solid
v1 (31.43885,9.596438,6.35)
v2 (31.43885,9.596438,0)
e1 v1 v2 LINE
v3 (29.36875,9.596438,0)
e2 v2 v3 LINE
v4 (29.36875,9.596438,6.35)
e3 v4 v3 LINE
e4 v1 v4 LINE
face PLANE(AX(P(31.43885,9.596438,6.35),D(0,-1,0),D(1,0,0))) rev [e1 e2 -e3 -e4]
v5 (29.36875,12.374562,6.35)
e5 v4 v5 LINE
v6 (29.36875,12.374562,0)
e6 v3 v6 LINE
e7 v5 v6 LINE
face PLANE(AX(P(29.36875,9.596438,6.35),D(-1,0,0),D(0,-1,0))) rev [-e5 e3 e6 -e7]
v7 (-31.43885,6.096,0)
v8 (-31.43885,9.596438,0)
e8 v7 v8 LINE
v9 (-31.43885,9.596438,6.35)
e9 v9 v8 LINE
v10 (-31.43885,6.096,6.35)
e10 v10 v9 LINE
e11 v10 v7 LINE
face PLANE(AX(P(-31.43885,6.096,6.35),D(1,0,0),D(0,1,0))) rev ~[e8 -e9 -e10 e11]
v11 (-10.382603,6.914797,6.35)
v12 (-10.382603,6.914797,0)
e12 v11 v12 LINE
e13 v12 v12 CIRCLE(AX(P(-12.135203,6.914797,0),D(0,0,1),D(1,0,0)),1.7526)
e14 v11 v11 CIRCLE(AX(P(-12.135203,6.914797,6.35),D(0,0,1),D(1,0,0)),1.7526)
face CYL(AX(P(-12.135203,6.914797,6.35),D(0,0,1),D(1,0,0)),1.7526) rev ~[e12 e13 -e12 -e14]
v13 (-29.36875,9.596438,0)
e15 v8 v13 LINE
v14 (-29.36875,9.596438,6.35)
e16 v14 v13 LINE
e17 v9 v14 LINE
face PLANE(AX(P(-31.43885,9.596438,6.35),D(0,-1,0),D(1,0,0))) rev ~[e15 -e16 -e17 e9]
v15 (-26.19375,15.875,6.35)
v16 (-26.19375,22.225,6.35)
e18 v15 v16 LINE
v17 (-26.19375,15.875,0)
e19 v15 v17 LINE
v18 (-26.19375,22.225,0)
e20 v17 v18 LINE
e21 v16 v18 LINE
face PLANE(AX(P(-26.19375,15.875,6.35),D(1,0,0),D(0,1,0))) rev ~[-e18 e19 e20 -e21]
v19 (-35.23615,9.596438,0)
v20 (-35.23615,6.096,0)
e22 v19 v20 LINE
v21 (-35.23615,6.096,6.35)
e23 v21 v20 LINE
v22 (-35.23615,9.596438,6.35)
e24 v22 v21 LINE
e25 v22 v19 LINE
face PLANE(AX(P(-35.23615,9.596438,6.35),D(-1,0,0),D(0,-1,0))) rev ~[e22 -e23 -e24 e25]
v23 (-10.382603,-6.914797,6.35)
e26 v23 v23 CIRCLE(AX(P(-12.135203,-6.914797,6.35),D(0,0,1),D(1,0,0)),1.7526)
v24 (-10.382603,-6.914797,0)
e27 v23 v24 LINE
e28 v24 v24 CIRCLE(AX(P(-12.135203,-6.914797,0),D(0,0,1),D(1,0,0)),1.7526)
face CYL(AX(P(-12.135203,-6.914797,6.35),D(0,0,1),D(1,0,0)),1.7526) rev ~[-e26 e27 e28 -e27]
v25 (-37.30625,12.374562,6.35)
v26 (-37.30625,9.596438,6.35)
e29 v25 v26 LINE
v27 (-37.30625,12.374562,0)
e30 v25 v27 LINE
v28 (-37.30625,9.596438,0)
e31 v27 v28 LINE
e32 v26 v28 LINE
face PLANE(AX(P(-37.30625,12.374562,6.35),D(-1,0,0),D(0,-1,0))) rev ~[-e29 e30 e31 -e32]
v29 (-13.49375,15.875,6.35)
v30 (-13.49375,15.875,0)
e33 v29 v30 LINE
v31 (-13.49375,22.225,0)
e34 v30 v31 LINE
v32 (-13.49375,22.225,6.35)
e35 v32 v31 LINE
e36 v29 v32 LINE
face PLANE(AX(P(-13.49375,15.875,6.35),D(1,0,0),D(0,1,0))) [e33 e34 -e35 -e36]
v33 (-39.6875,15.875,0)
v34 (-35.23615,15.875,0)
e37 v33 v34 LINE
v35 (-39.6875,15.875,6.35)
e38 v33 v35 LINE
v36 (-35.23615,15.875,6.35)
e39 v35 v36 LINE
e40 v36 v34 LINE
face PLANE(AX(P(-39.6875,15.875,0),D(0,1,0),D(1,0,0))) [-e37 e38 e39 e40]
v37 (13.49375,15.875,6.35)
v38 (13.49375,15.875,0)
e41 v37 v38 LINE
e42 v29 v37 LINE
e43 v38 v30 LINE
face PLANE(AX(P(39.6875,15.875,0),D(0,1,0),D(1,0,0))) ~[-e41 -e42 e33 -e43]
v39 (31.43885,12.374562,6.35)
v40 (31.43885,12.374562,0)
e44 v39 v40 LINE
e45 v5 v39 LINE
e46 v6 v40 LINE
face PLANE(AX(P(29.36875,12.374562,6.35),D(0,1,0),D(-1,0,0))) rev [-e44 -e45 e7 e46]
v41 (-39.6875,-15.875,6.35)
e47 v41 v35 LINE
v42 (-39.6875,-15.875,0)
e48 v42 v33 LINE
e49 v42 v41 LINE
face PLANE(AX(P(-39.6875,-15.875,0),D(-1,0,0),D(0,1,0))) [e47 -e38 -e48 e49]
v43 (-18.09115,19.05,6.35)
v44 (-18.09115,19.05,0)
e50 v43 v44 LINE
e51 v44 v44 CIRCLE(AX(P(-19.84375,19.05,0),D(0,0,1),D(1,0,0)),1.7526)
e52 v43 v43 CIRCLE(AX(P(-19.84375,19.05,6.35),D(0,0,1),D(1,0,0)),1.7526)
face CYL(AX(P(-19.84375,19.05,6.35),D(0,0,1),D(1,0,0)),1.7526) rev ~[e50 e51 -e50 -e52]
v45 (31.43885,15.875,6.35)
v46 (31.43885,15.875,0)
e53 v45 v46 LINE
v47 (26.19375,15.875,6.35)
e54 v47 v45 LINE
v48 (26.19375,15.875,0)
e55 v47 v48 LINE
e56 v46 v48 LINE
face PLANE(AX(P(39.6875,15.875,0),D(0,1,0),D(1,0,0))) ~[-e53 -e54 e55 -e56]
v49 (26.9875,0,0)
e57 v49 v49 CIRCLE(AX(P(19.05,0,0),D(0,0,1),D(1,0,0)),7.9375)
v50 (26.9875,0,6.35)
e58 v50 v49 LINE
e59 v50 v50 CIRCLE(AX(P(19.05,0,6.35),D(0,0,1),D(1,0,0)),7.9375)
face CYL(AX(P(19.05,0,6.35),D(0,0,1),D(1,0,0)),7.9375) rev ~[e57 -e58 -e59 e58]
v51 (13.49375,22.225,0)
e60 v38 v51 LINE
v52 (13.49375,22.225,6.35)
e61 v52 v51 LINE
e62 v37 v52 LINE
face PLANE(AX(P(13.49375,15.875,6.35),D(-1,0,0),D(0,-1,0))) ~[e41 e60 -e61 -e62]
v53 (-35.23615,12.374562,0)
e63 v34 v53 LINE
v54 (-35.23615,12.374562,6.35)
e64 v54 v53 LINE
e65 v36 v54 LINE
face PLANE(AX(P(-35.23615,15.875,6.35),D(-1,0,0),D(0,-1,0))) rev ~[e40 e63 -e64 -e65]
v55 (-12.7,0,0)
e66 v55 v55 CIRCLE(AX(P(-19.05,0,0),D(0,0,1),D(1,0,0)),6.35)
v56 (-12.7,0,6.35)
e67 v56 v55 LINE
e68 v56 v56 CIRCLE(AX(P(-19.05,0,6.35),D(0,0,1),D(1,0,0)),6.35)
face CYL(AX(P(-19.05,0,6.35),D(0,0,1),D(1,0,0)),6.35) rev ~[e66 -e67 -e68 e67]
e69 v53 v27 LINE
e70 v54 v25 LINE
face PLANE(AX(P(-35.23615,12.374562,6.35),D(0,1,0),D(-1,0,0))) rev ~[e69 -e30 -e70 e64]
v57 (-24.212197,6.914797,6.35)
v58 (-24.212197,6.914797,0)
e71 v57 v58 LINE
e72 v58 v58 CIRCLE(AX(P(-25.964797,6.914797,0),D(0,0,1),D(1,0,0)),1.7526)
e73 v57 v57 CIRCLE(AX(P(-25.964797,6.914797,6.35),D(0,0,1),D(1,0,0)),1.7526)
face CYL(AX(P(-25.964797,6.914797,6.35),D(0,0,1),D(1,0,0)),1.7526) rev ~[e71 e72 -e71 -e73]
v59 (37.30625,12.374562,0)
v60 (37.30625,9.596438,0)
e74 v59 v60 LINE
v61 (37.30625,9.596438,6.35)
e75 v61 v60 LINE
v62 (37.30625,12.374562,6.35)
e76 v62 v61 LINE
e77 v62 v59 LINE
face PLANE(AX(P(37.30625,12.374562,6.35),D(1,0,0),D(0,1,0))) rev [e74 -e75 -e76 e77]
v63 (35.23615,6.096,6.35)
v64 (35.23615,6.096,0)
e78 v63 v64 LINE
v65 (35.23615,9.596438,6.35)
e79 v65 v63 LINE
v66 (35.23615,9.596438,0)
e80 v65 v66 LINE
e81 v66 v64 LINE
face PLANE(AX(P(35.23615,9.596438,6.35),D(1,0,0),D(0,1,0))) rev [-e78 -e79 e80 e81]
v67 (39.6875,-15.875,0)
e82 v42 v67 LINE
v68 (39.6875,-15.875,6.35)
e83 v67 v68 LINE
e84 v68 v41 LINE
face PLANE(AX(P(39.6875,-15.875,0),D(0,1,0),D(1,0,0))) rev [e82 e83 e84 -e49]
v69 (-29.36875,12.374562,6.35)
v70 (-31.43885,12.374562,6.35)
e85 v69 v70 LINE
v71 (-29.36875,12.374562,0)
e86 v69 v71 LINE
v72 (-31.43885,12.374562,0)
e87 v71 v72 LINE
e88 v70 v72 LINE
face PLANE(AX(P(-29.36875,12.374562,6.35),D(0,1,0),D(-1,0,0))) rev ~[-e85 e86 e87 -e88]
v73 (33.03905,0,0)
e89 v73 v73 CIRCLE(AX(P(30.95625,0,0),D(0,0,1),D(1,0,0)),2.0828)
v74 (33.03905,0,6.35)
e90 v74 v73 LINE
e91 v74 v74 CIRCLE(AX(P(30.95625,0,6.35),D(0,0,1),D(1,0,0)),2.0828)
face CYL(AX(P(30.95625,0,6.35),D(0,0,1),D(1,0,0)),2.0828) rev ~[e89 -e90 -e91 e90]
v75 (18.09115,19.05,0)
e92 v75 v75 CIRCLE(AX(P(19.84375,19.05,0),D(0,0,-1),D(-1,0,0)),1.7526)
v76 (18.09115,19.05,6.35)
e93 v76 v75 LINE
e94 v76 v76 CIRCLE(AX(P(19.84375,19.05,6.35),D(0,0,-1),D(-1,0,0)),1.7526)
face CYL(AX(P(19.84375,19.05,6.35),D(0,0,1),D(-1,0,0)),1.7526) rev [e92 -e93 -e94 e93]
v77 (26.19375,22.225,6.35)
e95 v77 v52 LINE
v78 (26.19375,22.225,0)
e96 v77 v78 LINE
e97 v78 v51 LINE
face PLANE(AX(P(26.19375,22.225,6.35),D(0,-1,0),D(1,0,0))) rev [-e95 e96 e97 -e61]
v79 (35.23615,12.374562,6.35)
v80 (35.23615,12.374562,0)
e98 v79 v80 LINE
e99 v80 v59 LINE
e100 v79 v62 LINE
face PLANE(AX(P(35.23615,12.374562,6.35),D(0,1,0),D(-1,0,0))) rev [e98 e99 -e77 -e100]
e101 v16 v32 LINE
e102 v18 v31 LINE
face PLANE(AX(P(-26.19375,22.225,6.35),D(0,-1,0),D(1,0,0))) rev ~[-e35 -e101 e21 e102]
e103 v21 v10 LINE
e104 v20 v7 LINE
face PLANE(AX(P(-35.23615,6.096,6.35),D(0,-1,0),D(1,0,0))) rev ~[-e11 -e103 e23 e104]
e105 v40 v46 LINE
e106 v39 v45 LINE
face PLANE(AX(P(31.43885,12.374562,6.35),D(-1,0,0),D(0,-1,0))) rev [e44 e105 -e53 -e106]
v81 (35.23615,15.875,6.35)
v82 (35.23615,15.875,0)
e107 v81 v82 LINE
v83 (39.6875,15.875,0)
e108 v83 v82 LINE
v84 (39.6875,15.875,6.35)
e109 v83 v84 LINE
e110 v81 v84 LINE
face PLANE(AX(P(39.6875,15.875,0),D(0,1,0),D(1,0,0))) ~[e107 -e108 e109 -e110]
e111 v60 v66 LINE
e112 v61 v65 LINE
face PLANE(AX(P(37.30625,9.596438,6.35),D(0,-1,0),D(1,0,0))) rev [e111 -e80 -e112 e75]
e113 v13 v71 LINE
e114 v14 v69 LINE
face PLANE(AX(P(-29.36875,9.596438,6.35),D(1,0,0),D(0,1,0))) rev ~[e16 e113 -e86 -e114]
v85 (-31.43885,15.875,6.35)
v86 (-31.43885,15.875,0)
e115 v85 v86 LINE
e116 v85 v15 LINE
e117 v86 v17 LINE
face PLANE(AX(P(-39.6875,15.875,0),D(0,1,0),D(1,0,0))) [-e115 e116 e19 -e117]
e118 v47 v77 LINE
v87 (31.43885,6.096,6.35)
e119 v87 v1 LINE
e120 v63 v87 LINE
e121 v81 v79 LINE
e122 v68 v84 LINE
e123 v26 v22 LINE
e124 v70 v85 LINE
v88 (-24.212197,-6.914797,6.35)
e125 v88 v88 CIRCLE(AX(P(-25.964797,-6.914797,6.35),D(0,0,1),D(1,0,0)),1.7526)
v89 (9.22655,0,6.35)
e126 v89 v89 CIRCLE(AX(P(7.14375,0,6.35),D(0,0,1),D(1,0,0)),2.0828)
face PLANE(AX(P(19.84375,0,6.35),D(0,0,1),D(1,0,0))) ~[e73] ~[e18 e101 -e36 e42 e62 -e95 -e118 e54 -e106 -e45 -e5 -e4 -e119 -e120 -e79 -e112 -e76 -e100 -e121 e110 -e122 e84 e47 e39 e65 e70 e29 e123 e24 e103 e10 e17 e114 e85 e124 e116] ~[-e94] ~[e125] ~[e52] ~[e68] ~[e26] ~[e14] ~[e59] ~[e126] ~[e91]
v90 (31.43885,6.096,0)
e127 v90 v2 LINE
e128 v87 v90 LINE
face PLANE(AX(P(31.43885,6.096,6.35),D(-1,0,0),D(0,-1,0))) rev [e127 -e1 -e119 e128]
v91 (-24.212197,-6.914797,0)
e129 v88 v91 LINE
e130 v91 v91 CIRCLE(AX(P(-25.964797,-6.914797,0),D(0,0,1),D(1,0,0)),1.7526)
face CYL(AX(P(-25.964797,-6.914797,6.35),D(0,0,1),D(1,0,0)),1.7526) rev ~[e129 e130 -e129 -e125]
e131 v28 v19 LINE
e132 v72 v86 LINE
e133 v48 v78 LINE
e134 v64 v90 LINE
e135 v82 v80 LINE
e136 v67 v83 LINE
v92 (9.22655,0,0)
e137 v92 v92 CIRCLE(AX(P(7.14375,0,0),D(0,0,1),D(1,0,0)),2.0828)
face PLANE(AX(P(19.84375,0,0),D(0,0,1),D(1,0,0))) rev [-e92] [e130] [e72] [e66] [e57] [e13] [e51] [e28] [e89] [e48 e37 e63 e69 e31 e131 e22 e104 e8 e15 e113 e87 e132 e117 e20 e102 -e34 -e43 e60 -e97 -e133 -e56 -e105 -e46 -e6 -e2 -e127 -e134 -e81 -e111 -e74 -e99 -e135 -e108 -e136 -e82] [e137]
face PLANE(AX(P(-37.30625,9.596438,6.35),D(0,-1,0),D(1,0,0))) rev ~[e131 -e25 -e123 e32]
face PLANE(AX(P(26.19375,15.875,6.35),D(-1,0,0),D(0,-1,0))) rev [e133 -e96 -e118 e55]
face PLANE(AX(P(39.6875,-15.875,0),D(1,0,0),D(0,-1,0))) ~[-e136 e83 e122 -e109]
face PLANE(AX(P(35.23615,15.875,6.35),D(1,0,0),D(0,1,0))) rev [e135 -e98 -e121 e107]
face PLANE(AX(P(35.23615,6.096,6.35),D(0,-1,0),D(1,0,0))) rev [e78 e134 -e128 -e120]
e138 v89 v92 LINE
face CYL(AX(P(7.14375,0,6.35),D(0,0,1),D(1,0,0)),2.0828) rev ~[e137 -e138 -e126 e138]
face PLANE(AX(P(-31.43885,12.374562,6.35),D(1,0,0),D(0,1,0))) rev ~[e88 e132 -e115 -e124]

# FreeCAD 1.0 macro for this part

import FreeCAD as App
import Part
import Sketcher

V = App.Vector
Q = App.Units.Quantity


def add_polygon(sketch, points):
    """Adds a closed chain of lines whose ends are joined by coincident constraints."""
    first, n = sketch.GeometryCount, len(points)
    for a, b in zip(points, points[1:] + points[:1]):
        sketch.addGeometry(Part.LineSegment(App.Vector(*a, 0), App.Vector(*b, 0)), False)
    for i in range(n):
        sketch.addConstraint(Sketcher.Constraint("Coincident", first + i, 2, first + (i + 1) % n, 1))

doc = App.newDocument("Part")
body = doc.addObject("PartDesign::Body", "Body")

sketch1 = body.newObject("Sketcher::SketchObject", "Sketch")
sketch1.AttachmentSupport = (doc.getObject("XY_Plane"), [""])
sketch1.MapMode = "FlatFace"
add_polygon(sketch1, [(-40, 16), (-40, -16), (0, -16), (0, 16)])
sketch1.addConstraint(Sketcher.Constraint("Vertical", 0))
sketch1.addConstraint(Sketcher.Constraint("Horizontal", 1))
sketch1.addConstraint(Sketcher.Constraint("Vertical", 2))
sketch1.addConstraint(Sketcher.Constraint("Horizontal", 3))
sketch1.addConstraint(Sketcher.Constraint("Symmetric", 1, 2, 2, 2, -1, 1))
sketch1.addConstraint(Sketcher.Constraint("DistanceY", 0, 2, 0, 1, Q("1.25 in")))
sketch1.addConstraint(Sketcher.Constraint("DistanceX", 1, 1, 1, 2, Q("1.5625 in")))
pad1 = body.newObject("PartDesign::Pad", "Pad")
pad1.Profile = sketch1
pad1.Length = Q("0.25 in")

sketch2 = body.newObject("Sketcher::SketchObject", "Sketch001")
sketch2.AttachmentSupport = (doc.getObject("XY_Plane"), [""])
sketch2.MapMode = "FlatFace"
sketch2.AttachmentOffset = App.Placement(V(0, 0, 0.25 * 25.4), App.Rotation())
sketch2.addGeometry(Part.Circle(V(-19.1, 0, 0), V(0, 0, 1), 6.3), False)
sketch2.addGeometry(Part.Circle(V(-26, 6.9, 0), V(0, 0, 1), 1.8), False)
sketch2.addGeometry(Part.Circle(V(-12.1, 6.9, 0), V(0, 0, 1), 1.8), False)
sketch2.addGeometry(Part.Circle(V(-12.1, -6.9, 0), V(0, 0, 1), 1.8), False)
sketch2.addGeometry(Part.Circle(V(-26, -6.9, 0), V(0, 0, 1), 1.8), False)
sketch2.addConstraint(Sketcher.Constraint("Equal", 1, 2))
sketch2.addConstraint(Sketcher.Constraint("Equal", 2, 3))
sketch2.addConstraint(Sketcher.Constraint("Equal", 3, 4))
sketch2.addConstraint(Sketcher.Constraint("Symmetric", 2, 3, 3, 3, -1))
sketch2.addConstraint(Sketcher.Constraint("Symmetric", 1, 3, 4, 3, -1))
sketch2.addConstraint(Sketcher.Constraint("PointOnObject", 0, 3, -1))
sketch2.addConstraint(Sketcher.Constraint("Horizontal", 1, 3, 2, 3))
sketch2.addConstraint(Sketcher.Constraint("Diameter", 0, Q("0.5 in")))
sketch2.addConstraint(Sketcher.Constraint("Diameter", 1, Q("0.138 in")))
sketch2.addConstraint(Sketcher.Constraint("DistanceX", 0, 3, -1, 1, Q("0.75 in")))
sketch2.addConstraint(Sketcher.Constraint("DistanceX", 1, 3, -1, 1, Q("25.964797 mm")))
sketch2.addConstraint(Sketcher.Constraint("DistanceY", -1, 1, 1, 3, Q("6.914797 mm")))
sketch2.addConstraint(Sketcher.Constraint("DistanceX", 2, 3, -1, 1, Q("12.135203 mm")))
pocket1 = body.newObject("PartDesign::Pocket", "Pocket")
pocket1.Profile = sketch2
pocket1.Length = Q("0.25 in")

sketch3 = body.newObject("Sketcher::SketchObject", "Sketch002")
sketch3.AttachmentSupport = (doc.getObject("XY_Plane"), [""])
sketch3.MapMode = "FlatFace"
sketch3.AttachmentOffset = App.Placement(V(0, 0, 0.25 * 25.4), App.Rotation())
add_polygon(sketch3, [(-35.2, 6.1), (-31.4, 6.1), (-31.4, 9.6), (-29.4, 9.6), (-29.4, 12.4), (-31.4, 12.4), (-31.4, 15.9), (-35.2, 15.9), (-35.2, 12.4), (-37.3, 12.4), (-37.3, 9.6), (-35.2, 9.6)])
sketch3.addConstraint(Sketcher.Constraint("Horizontal", 0))
sketch3.addConstraint(Sketcher.Constraint("Vertical", 1))
sketch3.addConstraint(Sketcher.Constraint("Horizontal", 2))
sketch3.addConstraint(Sketcher.Constraint("Vertical", 3))
sketch3.addConstraint(Sketcher.Constraint("Horizontal", 4))
sketch3.addConstraint(Sketcher.Constraint("Vertical", 5))
sketch3.addConstraint(Sketcher.Constraint("Horizontal", 6))
sketch3.addConstraint(Sketcher.Constraint("Vertical", 7))
sketch3.addConstraint(Sketcher.Constraint("Horizontal", 8))
sketch3.addConstraint(Sketcher.Constraint("Vertical", 9))
sketch3.addConstraint(Sketcher.Constraint("Horizontal", 10))
sketch3.addConstraint(Sketcher.Constraint("Vertical", 11))
sketch3.addConstraint(Sketcher.Constraint("Horizontal", 4, 2, 7, 2))
sketch3.addConstraint(Sketcher.Constraint("Horizontal", 2, 2, 9, 2))
sketch3.addConstraint(Sketcher.Constraint("Vertical", 1, 2, 4, 2))
sketch3.addConstraint(Sketcher.Constraint("Vertical", 7, 2, 10, 2))
sketch3.addConstraint(Sketcher.Constraint("Equal", 4, 8))
sketch3.addConstraint(Sketcher.Constraint("Equal", 1, 5))
sketch3.addConstraint(Sketcher.Constraint("DistanceY", 3, 1, 3, 2, Q("0.109375 in")))
sketch3.addConstraint(Sketcher.Constraint("DistanceY", -1, 1, 0, 2, Q("0.24 in")))
sketch3.addConstraint(Sketcher.Constraint("DistanceX", 0, 1, 0, 2, Q("0.1495 in")))
sketch3.addConstraint(Sketcher.Constraint("DistanceX", 2, 1, 2, 2, Q("0.0815 in")))
sketch3.addConstraint(Sketcher.Constraint("DistanceX", 2, 2, -1, 1, Q("1.15625 in")))
sketch3.addConstraint(Sketcher.Constraint("DistanceY", -1, 1, 5, 2, Q("0.625 in")))
pocket2 = body.newObject("PartDesign::Pocket", "Pocket001")
pocket2.Profile = sketch3
pocket2.Length = Q("0.25 in")

sketch4 = body.newObject("Sketcher::SketchObject", "Sketch003")
sketch4.AttachmentSupport = (doc.getObject("XY_Plane"), [""])
sketch4.MapMode = "FlatFace"
sketch4.AttachmentOffset = App.Placement(V(0, 0, 0.25 * 25.4), App.Rotation())
add_polygon(sketch4, [(-26.2, 22.2), (-26.2, 15.9), (-13.5, 15.9), (-13.5, 22.2)])
sketch4.addGeometry(Part.Circle(V(-19.8, 19.1, 0), V(0, 0, 1), 1.8), False)
sketch4.addConstraint(Sketcher.Constraint("Vertical", 0))
sketch4.addConstraint(Sketcher.Constraint("Horizontal", 1))
sketch4.addConstraint(Sketcher.Constraint("Vertical", 2))
sketch4.addConstraint(Sketcher.Constraint("Horizontal", 3))
sketch4.addConstraint(Sketcher.Constraint("Diameter", 4, Q("0.138 in")))
sketch4.addConstraint(Sketcher.Constraint("DistanceX", 1, 1, 1, 2, Q("0.5 in")))
sketch4.addConstraint(Sketcher.Constraint("DistanceY", 0, 2, 0, 1, Q("0.25 in")))
sketch4.addConstraint(Sketcher.Constraint("DistanceY", -1, 1, 4, 3, Q("0.75 in")))
sketch4.addConstraint(Sketcher.Constraint("DistanceX", 0, 2, 4, 3, Q("0.25 in")))
sketch4.addConstraint(Sketcher.Constraint("DistanceX", 4, 3, -1, 1, Q("0.78125 in")))
sketch4.addConstraint(Sketcher.Constraint("DistanceY", -1, 1, 0, 2, Q("0.625 in")))
pad2 = body.newObject("PartDesign::Pad", "Pad001")
pad2.Profile = sketch4
pad2.Length = Q("0.25 in")
pad2.Reversed = True
doc.recompute()

mirrored = body.newObject("PartDesign::Mirrored", "Mirrored")
mirrored.Originals = [pad1, pocket2, pad2]
mirrored.MirrorPlane = (doc.getObject("YZ_Plane"), [""])
body.Tip = mirrored

sketch5 = body.newObject("Sketcher::SketchObject", "Sketch004")
sketch5.AttachmentSupport = (doc.getObject("XY_Plane"), [""])
sketch5.MapMode = "FlatFace"
sketch5.AttachmentOffset = App.Placement(V(0, 0, 0.25 * 25.4), App.Rotation())
sketch5.addGeometry(Part.Circle(V(19.1, 0, 0), V(0, 0, 1), 7.9), False)
sketch5.addGeometry(Part.Circle(V(7.1, 0, 0), V(0, 0, 1), 2.1), False)
sketch5.addGeometry(Part.Circle(V(31, 0, 0), V(0, 0, 1), 2.1), False)
sketch5.addConstraint(Sketcher.Constraint("Equal", 1, 2))
sketch5.addConstraint(Sketcher.Constraint("PointOnObject", 0, 3, -1))
sketch5.addConstraint(Sketcher.Constraint("PointOnObject", 1, 3, -1))
sketch5.addConstraint(Sketcher.Constraint("PointOnObject", 2, 3, -1))
sketch5.addConstraint(Sketcher.Constraint("Diameter", 0, Q("0.625 in")))
sketch5.addConstraint(Sketcher.Constraint("Diameter", 1, Q("0.164 in")))
sketch5.addConstraint(Sketcher.Constraint("DistanceX", -1, 1, 0, 3, Q("0.75 in")))
sketch5.addConstraint(Sketcher.Constraint("DistanceX", -1, 1, 1, 3, Q("0.28125 in")))
sketch5.addConstraint(Sketcher.Constraint("DistanceX", -1, 1, 2, 3, Q("1.21875 in")))
pocket3 = body.newObject("PartDesign::Pocket", "Pocket002")
pocket3.Profile = sketch5
pocket3.Length = Q("0.25 in")

doc.recompute()
